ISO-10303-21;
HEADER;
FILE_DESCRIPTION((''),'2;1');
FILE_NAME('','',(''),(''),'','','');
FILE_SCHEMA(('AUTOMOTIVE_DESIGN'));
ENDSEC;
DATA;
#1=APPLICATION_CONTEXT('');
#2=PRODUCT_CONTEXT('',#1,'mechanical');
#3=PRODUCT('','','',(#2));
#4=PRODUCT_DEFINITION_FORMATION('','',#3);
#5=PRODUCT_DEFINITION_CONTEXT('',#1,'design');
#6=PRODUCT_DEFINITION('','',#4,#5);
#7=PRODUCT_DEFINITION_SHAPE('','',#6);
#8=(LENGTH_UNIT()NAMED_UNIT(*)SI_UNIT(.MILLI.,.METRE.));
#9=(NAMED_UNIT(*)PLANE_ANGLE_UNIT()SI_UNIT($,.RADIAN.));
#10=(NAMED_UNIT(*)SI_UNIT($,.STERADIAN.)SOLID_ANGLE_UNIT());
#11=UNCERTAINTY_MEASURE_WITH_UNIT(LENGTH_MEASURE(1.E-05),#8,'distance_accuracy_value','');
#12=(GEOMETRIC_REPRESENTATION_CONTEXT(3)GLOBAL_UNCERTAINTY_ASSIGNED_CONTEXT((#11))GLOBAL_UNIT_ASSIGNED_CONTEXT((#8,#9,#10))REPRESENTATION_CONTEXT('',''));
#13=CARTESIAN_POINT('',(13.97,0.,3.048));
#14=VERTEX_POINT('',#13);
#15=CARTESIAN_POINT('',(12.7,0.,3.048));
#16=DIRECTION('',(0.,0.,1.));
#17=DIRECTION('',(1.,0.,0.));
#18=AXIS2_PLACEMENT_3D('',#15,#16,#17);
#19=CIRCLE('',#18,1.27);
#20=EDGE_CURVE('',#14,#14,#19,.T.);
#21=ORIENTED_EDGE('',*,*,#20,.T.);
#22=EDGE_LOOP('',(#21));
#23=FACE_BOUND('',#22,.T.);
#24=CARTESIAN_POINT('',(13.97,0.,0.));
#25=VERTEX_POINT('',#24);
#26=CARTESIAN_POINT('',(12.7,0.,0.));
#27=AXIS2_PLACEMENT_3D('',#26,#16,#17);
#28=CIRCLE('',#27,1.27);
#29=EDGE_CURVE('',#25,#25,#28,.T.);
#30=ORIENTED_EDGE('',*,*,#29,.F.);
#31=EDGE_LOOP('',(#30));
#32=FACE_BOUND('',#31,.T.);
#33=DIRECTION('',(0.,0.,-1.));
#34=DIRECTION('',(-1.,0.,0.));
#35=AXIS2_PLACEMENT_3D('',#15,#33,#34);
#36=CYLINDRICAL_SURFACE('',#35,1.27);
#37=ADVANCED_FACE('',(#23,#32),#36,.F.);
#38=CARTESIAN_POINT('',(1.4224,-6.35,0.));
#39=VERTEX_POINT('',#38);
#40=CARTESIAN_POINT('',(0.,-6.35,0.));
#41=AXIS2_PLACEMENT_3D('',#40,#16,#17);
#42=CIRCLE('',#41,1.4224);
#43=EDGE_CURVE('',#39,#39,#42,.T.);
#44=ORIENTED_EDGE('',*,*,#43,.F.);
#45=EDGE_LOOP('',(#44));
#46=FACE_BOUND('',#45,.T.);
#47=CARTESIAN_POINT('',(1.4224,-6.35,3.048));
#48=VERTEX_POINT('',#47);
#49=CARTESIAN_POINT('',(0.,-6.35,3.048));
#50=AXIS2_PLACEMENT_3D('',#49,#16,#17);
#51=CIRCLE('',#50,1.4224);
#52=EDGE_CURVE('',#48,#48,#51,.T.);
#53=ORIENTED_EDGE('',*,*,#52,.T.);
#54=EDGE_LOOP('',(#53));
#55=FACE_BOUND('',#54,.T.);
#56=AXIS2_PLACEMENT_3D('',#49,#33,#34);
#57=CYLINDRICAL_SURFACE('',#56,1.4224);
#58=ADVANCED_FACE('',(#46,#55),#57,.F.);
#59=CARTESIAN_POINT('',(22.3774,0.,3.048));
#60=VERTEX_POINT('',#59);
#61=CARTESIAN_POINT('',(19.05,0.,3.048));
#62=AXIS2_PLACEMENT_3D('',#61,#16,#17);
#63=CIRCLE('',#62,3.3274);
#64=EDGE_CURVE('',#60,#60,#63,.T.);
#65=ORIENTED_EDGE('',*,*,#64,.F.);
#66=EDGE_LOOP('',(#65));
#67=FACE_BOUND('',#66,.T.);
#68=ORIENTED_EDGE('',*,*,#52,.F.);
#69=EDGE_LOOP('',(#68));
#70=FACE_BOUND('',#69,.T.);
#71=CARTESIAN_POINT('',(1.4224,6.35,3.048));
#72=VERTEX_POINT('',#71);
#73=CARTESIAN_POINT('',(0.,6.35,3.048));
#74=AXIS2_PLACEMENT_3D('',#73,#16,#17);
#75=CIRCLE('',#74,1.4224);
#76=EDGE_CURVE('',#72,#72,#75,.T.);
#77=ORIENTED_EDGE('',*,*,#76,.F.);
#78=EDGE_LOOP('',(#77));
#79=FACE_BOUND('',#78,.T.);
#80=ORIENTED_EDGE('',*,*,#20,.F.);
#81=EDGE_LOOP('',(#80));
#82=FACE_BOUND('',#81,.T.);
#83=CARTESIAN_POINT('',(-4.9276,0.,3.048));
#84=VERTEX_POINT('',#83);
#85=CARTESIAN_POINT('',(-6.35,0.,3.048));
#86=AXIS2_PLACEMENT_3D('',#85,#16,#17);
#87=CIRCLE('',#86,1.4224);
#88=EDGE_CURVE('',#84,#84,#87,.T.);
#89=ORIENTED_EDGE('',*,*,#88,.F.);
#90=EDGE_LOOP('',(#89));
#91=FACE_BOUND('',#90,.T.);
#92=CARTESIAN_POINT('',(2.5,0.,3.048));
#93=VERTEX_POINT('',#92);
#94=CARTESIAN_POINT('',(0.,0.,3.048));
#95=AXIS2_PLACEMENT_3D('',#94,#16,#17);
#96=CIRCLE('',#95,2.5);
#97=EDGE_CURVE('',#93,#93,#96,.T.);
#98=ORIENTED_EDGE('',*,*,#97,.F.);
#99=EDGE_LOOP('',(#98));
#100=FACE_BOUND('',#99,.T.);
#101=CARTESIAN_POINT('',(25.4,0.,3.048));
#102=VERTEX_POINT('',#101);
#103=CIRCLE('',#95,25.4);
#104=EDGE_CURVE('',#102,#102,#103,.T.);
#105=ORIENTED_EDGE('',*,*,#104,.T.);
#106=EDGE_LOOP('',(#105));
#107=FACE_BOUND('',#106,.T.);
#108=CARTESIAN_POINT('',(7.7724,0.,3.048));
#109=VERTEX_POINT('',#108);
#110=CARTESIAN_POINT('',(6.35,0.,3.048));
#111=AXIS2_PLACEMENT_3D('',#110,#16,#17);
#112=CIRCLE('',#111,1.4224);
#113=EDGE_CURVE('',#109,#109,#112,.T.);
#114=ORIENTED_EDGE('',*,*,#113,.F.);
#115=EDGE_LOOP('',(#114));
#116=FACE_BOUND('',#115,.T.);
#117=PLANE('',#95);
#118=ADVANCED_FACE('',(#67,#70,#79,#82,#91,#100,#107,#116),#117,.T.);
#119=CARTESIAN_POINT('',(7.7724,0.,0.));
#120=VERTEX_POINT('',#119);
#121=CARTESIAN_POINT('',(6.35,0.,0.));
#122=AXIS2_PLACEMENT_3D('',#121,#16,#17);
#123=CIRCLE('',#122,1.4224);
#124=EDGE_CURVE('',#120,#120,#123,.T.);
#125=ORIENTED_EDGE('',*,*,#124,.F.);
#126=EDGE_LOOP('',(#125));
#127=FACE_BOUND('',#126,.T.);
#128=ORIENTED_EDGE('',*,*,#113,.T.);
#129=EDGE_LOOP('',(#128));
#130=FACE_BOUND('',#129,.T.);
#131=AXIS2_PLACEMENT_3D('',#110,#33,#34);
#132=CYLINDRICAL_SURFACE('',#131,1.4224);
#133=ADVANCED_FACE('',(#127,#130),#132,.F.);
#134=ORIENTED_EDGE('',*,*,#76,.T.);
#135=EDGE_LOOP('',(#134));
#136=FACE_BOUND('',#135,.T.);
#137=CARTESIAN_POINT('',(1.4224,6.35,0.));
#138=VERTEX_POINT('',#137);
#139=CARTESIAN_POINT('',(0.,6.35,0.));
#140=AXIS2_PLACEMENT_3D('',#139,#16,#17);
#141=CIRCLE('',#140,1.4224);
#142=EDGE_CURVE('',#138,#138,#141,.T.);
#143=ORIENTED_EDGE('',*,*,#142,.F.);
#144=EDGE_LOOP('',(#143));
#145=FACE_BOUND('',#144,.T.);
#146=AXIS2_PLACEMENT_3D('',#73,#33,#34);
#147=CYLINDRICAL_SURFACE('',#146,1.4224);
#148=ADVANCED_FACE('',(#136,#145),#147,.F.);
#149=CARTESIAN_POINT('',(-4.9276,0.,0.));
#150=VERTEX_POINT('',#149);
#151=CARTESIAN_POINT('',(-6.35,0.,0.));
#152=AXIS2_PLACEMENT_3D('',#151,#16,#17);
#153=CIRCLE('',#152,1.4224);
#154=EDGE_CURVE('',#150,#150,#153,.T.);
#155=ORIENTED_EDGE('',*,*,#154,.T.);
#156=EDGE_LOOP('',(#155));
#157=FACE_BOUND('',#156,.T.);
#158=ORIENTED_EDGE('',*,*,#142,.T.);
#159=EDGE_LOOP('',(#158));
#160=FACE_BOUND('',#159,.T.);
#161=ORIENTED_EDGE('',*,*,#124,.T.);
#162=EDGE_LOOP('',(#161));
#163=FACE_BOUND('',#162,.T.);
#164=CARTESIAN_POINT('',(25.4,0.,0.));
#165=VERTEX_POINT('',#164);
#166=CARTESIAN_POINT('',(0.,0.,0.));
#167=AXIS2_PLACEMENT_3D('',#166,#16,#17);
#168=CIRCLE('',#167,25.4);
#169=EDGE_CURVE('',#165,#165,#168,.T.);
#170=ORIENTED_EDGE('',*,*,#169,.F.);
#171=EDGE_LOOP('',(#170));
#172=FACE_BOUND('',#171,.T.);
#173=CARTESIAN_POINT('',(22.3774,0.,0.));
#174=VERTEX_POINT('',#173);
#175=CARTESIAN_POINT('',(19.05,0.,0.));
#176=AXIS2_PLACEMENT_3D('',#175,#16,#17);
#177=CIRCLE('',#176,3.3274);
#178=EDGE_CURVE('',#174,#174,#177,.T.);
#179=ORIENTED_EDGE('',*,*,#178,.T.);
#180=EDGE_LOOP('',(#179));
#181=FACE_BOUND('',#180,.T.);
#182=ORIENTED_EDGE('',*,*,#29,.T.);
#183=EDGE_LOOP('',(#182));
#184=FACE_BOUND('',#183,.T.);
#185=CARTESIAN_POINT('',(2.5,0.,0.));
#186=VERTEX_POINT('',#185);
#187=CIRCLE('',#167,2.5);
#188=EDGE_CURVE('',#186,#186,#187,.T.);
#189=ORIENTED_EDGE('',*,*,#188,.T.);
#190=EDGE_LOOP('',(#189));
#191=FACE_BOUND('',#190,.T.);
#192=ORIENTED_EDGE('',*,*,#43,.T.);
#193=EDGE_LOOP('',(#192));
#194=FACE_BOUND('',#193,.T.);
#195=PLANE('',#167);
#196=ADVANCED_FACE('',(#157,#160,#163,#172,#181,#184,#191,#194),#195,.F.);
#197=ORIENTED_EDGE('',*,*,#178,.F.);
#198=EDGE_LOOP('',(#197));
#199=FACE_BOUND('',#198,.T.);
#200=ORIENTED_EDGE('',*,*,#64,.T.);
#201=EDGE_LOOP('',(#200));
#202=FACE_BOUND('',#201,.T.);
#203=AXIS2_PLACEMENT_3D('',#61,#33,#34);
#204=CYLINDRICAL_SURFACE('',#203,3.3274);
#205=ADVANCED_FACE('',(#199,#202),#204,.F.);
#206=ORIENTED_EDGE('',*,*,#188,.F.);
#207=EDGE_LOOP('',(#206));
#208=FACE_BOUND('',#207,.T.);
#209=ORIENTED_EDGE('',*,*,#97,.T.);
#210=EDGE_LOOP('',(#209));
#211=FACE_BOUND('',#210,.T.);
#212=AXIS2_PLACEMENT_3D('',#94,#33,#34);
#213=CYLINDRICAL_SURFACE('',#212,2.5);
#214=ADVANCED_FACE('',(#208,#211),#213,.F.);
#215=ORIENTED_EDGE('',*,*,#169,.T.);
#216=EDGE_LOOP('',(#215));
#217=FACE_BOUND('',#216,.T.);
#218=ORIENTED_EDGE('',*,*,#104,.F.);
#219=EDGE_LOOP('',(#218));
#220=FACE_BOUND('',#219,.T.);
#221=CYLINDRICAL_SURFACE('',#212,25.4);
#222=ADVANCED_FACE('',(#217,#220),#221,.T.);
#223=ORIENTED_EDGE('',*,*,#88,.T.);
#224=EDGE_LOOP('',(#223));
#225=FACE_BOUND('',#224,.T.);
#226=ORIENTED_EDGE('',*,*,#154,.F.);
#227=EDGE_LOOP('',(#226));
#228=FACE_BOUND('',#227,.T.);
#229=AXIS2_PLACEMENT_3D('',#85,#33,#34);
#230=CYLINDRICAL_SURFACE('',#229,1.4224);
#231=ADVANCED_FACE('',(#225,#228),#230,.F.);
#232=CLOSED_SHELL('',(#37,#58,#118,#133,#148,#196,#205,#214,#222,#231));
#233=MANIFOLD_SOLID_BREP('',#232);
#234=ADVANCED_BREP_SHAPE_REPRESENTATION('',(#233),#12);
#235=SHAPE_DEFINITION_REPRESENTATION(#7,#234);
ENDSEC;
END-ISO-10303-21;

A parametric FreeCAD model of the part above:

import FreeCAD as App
import Part
import Sketcher

V = App.Vector
Q = App.Units.Quantity

doc = App.newDocument("Part")
params = doc.addObject("Spreadsheet::Sheet", "Params")
for row, (alias, value) in enumerate([
    ("sketch1_diameter", "2 in"),
    ("sketch1_diameter2", "0.1 in"),
    ("sketch1_diameter3", "0.112 in"),
    ("sketch1_diameter4", "0.262 in"),
    ("pad1_length", "0.12 in"),
], start=1):
    params.set(f"A{row}", alias)
    params.set(f"B{row}", "=" + value)
    params.setAlias(f"B{row}", alias)

body = doc.addObject("PartDesign::Body", "Body")

sketch1 = body.newObject("Sketcher::SketchObject", "Sketch")
sketch1.AttachmentSupport = (doc.getObject("XY_Plane"), [""])
sketch1.MapMode = "FlatFace"
sketch1.addGeometry(Part.Circle(V(0, 0, 0), V(0, 0, 1), 25.4), False)
sketch1.addGeometry(Part.Circle(V(0, -6.3, 0), V(0, 0, 1), 1.4), False)
sketch1.addGeometry(Part.Circle(V(-6.3, 0, 0), V(0, 0, 1), 1.4), False)
sketch1.addGeometry(Part.Circle(V(6.3, 0, 0), V(0, 0, 1), 1.4), False)
sketch1.addGeometry(Part.Circle(V(12.7, 0, 0), V(0, 0, 1), 1.3), False)
sketch1.addGeometry(Part.Circle(V(0, 0, 0), V(0, 0, 1), 2.5), False)
sketch1.addGeometry(Part.Circle(V(0, 6.3, 0), V(0, 0, 1), 1.4), False)
sketch1.addGeometry(Part.Circle(V(19.1, 0, 0), V(0, 0, 1), 3.3), False)
sketch1.addConstraint(Sketcher.Constraint("Coincident", 0, 3, -1, 1))
sketch1.addConstraint(Sketcher.Constraint("Coincident", 5, 3, -1, 1))
sketch1.addConstraint(Sketcher.Constraint("Equal", 1, 2))
sketch1.addConstraint(Sketcher.Constraint("Equal", 2, 3))
sketch1.addConstraint(Sketcher.Constraint("Equal", 3, 6))
sketch1.addConstraint(Sketcher.Constraint("Symmetric", 2, 3, 3, 3, -1, 1))
sketch1.addConstraint(Sketcher.Constraint("Symmetric", 1, 3, 6, 3, -1, 1))
sketch1.addConstraint(Sketcher.Constraint("PointOnObject", 1, 3, -2))
sketch1.addConstraint(Sketcher.Constraint("PointOnObject", 2, 3, -1))
sketch1.addConstraint(Sketcher.Constraint("PointOnObject", 4, 3, -1))
sketch1.addConstraint(Sketcher.Constraint("PointOnObject", 7, 3, -1))
sketch1.addConstraint(Sketcher.Constraint("Diameter", 0, Q("2 in")))
sketch1.addConstraint(Sketcher.Constraint("Diameter", 4, Q("0.1 in")))
sketch1.addConstraint(Sketcher.Constraint("Diameter", 1, Q("0.112 in")))
sketch1.addConstraint(Sketcher.Constraint("Diameter", 7, Q("0.262 in")))
sketch1.addConstraint(Sketcher.Constraint("DistanceX", -1, 1, 4, 3, Q("0.5 in")))
sketch1.addConstraint(Sketcher.Constraint("DistanceX", 2, 3, 3, 3, Q("0.5 in")))
sketch1.addConstraint(Sketcher.Constraint("DistanceY", 1, 3, 6, 3, Q("0.5 in")))
sketch1.addConstraint(Sketcher.Constraint("DistanceX", 3, 3, 7, 3, Q("0.5 in")))
sketch1.addConstraint(Sketcher.Constraint("Diameter", 5, 5.0))
sketch1.setExpression("Constraints[11]", "Params.sketch1_diameter")
sketch1.setExpression("Constraints[12]", "Params.sketch1_diameter2")
sketch1.setExpression("Constraints[13]", "Params.sketch1_diameter3")
sketch1.setExpression("Constraints[14]", "Params.sketch1_diameter4")
pad1 = body.newObject("PartDesign::Pad", "Pad")
pad1.Profile = sketch1
pad1.setExpression("Length", "Params.pad1_length")

doc.recompute()
